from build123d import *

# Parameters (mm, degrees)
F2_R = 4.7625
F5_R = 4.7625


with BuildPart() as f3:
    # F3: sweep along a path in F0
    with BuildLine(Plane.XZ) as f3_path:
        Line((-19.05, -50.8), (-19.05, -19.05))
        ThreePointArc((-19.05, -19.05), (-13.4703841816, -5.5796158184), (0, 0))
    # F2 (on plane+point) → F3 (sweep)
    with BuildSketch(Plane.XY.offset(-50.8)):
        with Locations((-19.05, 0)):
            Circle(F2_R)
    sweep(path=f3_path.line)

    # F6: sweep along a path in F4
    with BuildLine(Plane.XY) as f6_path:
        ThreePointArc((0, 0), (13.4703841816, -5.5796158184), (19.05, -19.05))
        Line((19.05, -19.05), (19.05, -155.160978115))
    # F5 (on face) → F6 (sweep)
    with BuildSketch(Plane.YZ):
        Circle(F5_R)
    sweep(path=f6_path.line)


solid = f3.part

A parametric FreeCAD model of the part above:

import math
import FreeCAD as App
import Part
import Sketcher
from FreeCAD import Vector
Q = App.Units.Quantity

doc = App.newDocument("Part")
body = doc.addObject("PartDesign::Body", "Body")

# Sketch on XY plane
sketch1 = body.newObject("Sketcher::SketchObject", "Sketch")
sketch1.AttachmentSupport = (doc.getObject("XY_Plane"), [""])
sketch1.MapMode = "FlatFace"
sketch1.AttachmentOffset = App.Placement(Vector(0, 0, -2 * 25.4), App.Rotation())
sketch1.addGeometry(Part.Circle(Vector(-19.1, 0, 0), Vector(0, 0, 1), 4.8), False)
sketch1.addConstraint([
    Sketcher.Constraint("PointOnObject", 0, 3, -1),
    Sketcher.Constraint("Diameter", 0, Q("0.375 in")),
    Sketcher.Constraint("DistanceX", 0, 3, -1, 1, Q("0.75 in")),
])

# Sketch on XZ plane
sketch2 = body.newObject("Sketcher::SketchObject", "Sketch001")
sketch2.AttachmentSupport = (doc.getObject("XZ_Plane"), [""])
sketch2.MapMode = "FlatFace"
sketch2.addGeometry([
    Part.LineSegment(Vector(-19, -51, 0), Vector(-19, -19, 0)),
    Part.ArcOfCircle(Part.Circle(Vector(0, -19, 0), Vector(0, 0, 1), 19), math.radians(90), math.radians(180)),
], False)
sketch2.addConstraint([
    Sketcher.Constraint("Tangent", 0, 2, 1, 2),
    Sketcher.Constraint("Vertical", 0),
    Sketcher.Constraint("Coincident", 1, 1, -1, 1),
    Sketcher.Constraint("PointOnObject", 1, 3, -2),
    Sketcher.Constraint("Radius", 1, Q("0.75 in")),
    Sketcher.Constraint("DistanceY", 0, 1, -1, 1, Q("2 in")),
])
doc.recompute()

additivepipe = body.newObject("PartDesign::AdditivePipe", "AdditivePipe")
additivepipe.Profile = sketch1
additivepipe.Spine = (sketch2, ["Edge1", "Edge2"])

# Sketch on YZ plane
sketch3 = body.newObject("Sketcher::SketchObject", "Sketch002")
sketch3.AttachmentSupport = (doc.getObject("YZ_Plane"), [""])
sketch3.MapMode = "FlatFace"
sketch3.addGeometry(Part.Circle(Vector(0, 0, 0), Vector(0, 0, 1), 4.8), False)
sketch3.addConstraint([
    Sketcher.Constraint("Coincident", 0, 3, -1, 1),
    Sketcher.Constraint("Diameter", 0, Q("0.375 in")),
])

# Sketch on XY plane
sketch4 = body.newObject("Sketcher::SketchObject", "Sketch003")
sketch4.AttachmentSupport = (doc.getObject("XY_Plane"), [""])
sketch4.MapMode = "FlatFace"
sketch4.addGeometry([
    Part.ArcOfCircle(Part.Circle(Vector(0, -19, 0), Vector(0, 0, 1), 19), math.radians(0), math.radians(90)),
    Part.LineSegment(Vector(19, -19, 0), Vector(19, -155, 0)),
], False)
sketch4.addConstraint([
    Sketcher.Constraint("Tangent", 0, 1, 1, 1),
    Sketcher.Constraint("Vertical", 1),
    Sketcher.Constraint("Coincident", 0, 2, -1, 1),
    Sketcher.Constraint("PointOnObject", 0, 3, -2),
    Sketcher.Constraint("Radius", 0, Q("0.75 in")),
    Sketcher.Constraint("DistanceY", 1, 2, 1, 1, Q("5.3586999 in")),
])
doc.recompute()

additivepipe2 = body.newObject("PartDesign::AdditivePipe", "AdditivePipe001")
additivepipe2.Profile = sketch3
additivepipe2.Spine = (sketch4, ["Edge1", "Edge2"])

doc.recompute()
